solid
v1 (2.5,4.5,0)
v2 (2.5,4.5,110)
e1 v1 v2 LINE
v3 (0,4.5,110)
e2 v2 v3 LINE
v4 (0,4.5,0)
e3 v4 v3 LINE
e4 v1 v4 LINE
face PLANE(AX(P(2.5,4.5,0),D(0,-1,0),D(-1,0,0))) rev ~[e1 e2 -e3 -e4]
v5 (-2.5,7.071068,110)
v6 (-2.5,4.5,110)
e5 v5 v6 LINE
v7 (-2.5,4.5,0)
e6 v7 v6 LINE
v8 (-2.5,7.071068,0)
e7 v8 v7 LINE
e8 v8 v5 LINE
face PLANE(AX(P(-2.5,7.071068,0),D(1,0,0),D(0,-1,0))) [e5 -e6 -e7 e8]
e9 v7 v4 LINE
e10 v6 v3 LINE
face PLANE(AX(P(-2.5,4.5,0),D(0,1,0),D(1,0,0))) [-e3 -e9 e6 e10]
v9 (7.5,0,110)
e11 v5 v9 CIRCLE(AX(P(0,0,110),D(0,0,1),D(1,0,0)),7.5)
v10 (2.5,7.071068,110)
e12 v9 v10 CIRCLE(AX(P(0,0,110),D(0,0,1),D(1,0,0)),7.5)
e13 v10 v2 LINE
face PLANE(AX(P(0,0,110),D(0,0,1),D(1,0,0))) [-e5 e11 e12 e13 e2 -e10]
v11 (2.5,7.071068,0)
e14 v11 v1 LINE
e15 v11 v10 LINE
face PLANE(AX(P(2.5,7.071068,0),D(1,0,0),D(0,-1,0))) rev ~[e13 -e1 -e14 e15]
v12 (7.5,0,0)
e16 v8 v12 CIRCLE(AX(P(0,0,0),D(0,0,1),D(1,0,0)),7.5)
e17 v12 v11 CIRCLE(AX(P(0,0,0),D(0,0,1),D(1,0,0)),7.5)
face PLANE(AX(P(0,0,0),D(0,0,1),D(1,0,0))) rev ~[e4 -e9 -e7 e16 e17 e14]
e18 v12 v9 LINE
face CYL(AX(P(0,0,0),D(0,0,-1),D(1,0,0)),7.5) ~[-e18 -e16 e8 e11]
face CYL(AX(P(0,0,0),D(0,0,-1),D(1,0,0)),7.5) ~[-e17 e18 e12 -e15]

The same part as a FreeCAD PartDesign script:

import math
import FreeCAD as App
import Part
import Sketcher
Q = App.Units.Quantity

doc = App.newDocument("Part")
body = doc.addObject("PartDesign::Body", "Body")

sketch1 = body.newObject("Sketcher::SketchObject", "Sketch")
sketch1.AttachmentSupport = (doc.getObject("XY_Plane"), [""])
sketch1.MapMode = "FlatFace"
sketch1.addGeometry(Part.ArcOfCircle(Part.Circle(App.Vector(0, 0, 0), App.Vector(0, 0, 1), 7.5), math.radians(109), math.radians(431)), False)
sketch1.addGeometry(Part.LineSegment(App.Vector(2.5, 7.1, 0), App.Vector(2.5, 4.5, 0)), False)
sketch1.addGeometry(Part.LineSegment(App.Vector(2.5, 4.5, 0), App.Vector(-2.5, 4.5, 0)), False)
sketch1.addGeometry(Part.LineSegment(App.Vector(-2.5, 4.5, 0), App.Vector(-2.5, 7.1, 0)), False)
sketch1.addConstraint(Sketcher.Constraint("Coincident", 0, 2, 1, 1))
sketch1.addConstraint(Sketcher.Constraint("Coincident", 1, 2, 2, 1))
sketch1.addConstraint(Sketcher.Constraint("Coincident", 2, 2, 3, 1))
sketch1.addConstraint(Sketcher.Constraint("Coincident", 3, 2, 0, 1))
sketch1.addConstraint(Sketcher.Constraint("Vertical", 1))
sketch1.addConstraint(Sketcher.Constraint("Horizontal", 2))
sketch1.addConstraint(Sketcher.Constraint("Vertical", 3))
sketch1.addConstraint(Sketcher.Constraint("Coincident", 0, 3, -1, 1))
sketch1.addConstraint(Sketcher.Constraint("Horizontal", 0, 2, 3, 2))
sketch1.addConstraint(Sketcher.Constraint("Radius", 0, Q("7.5 mm")))
sketch1.addConstraint(Sketcher.Constraint("DistanceX", -1, 1, 0, 2, Q("2.5 mm")))
sketch1.addConstraint(Sketcher.Constraint("DistanceY", -1, 1, 1, 2, Q("4.5 mm")))
pad1 = body.newObject("PartDesign::Pad", "Pad")
pad1.Profile = sketch1
pad1.Length = 110

doc.recompute()
